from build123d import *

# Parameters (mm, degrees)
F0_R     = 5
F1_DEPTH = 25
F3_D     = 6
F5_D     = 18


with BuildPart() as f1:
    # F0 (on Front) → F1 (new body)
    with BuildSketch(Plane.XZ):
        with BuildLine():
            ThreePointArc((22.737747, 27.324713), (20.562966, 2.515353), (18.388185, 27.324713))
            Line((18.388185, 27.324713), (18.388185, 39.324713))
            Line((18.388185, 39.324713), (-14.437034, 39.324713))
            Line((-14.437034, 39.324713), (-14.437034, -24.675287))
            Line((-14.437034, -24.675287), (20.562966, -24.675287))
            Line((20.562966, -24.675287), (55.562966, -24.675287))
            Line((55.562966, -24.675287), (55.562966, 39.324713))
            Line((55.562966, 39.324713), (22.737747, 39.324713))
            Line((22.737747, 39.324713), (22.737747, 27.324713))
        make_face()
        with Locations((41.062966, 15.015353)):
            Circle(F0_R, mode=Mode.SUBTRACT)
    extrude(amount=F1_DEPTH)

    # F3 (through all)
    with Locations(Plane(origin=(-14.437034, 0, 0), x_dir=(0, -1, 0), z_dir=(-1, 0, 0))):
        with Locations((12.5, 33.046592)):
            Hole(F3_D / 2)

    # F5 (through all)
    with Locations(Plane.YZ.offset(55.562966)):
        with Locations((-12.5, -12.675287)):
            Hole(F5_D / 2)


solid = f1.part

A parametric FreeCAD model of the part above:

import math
import FreeCAD as App
import Part
import Sketcher
from FreeCAD import Vector

doc = App.newDocument("Part")
body = doc.addObject("PartDesign::Body", "Body")

# Sketch on XZ plane
sketch1 = doc.addObject("Sketcher::SketchObject", "Sketch")
body.addObject(sketch1)
sketch1.AttachmentSupport = (doc.XZ_Plane, [""])
sketch1.MapMode = "FlatFace"
sketch1.addGeometry([
    Part.ArcOfCircle(Part.Circle(Vector(20.562966, 15.015353, 0), Vector(0, 0, 1), 12.5), math.radians(100.01945), math.radians(439.98055)),  # 0
    Part.LineSegment(Vector(18.388185, 27.324713, 0), Vector(18.388185, 39.324713, 0)),  # 1
    Part.LineSegment(Vector(18.388185, 39.324713, 0), Vector(-14.437034, 39.324713, 0)),  # 2
    Part.LineSegment(Vector(-14.437034, 39.324713, 0), Vector(-14.437034, -24.675287, 0)),  # 3
    Part.LineSegment(Vector(-14.437034, -24.675287, 0), Vector(55.562966, -24.675287, 0)),  # 4
    Part.LineSegment(Vector(55.562966, -24.675287, 0), Vector(55.562966, 39.324713, 0)),  # 5
    Part.LineSegment(Vector(55.562966, 39.324713, 0), Vector(22.737747, 39.324713, 0)),  # 6
    Part.LineSegment(Vector(22.737747, 39.324713, 0), Vector(22.737747, 27.324713, 0)),  # 7
    Part.Circle(Vector(41.062966, 15.015353, 0), Vector(0, 0, 1), 5),  # 8
], False)
sketch1.addConstraint([
    Sketcher.Constraint("Coincident", 0, 1, 1, 1),
    Sketcher.Constraint("Coincident", 1, 2, 2, 1),
    Sketcher.Constraint("Coincident", 2, 2, 3, 1),
    Sketcher.Constraint("Coincident", 3, 2, 4, 1),
    Sketcher.Constraint("Coincident", 4, 2, 5, 1),
    Sketcher.Constraint("Coincident", 5, 2, 6, 1),
    Sketcher.Constraint("Coincident", 6, 2, 7, 1),
    Sketcher.Constraint("Coincident", 7, 2, 0, 2),
    Sketcher.Constraint("Vertical", 1),
    Sketcher.Constraint("Horizontal", 2),
    Sketcher.Constraint("Vertical", 3),
    Sketcher.Constraint("Horizontal", 4),
    Sketcher.Constraint("Vertical", 5),
    Sketcher.Constraint("Horizontal", 6),
    Sketcher.Constraint("Vertical", 7),
    Sketcher.Constraint("Horizontal", 0, 3, 8, 3),
    Sketcher.Constraint("Horizontal", 2, 2, 5, 2),
    Sketcher.Constraint("Horizontal", 0, 1, 7, 2),
    Sketcher.Constraint("Equal", 2, 6),
    Sketcher.Constraint("Diameter", 8, 10.0),
    Sketcher.Constraint("Radius", 0, 12.5),
    Sketcher.Constraint("DistanceX", 4, 1, 4, 2, 70.0),
    Sketcher.Constraint("DistanceY", 1, 1, 1, 2, 12.0),
    Sketcher.Constraint("DistanceY", 3, 2, 3, 1, 64.0),
    Sketcher.Constraint("DistanceX", 0, 3, 8, 3, 20.5),
    Sketcher.Constraint("DistanceX", 2, 2, 2, 1, 32.825219),
    Sketcher.Constraint("DistanceX", -1, 1, 0, 3, 20.562966),
    Sketcher.Constraint("DistanceY", -1, 1, 0, 3, 15.015353),
])
pad1 = doc.addObject("PartDesign::Pad", "Pad")
body.addObject(pad1)
pad1.Profile = sketch1
pad1.Length = 25

# Sketch on YZ plane
sketch2 = doc.addObject("Sketcher::SketchObject", "Sketch001")
body.addObject(sketch2)
sketch2.AttachmentSupport = (doc.YZ_Plane, [""])
sketch2.MapMode = "FlatFace"
sketch2.AttachmentOffset = App.Placement(Vector(0, 0, -14.437034), App.Rotation())
sketch2.addGeometry(Part.Circle(Vector(-12.5, 33.046592, 0), Vector(0, 0, 1), 3), False)
sketch2.addConstraint([
    Sketcher.Constraint("Diameter", 0, 6.0),
    Sketcher.Constraint("DistanceX", 0, 3, -1, 1, 12.5),
    Sketcher.Constraint("DistanceY", -1, 1, 0, 3, 33.046592),
])
doc.recompute()
hole = doc.addObject("PartDesign::Hole", "Hole")
body.addObject(hole)
hole.Profile = sketch2
hole.ThreadType = "None"
hole.Diameter = 6
hole.DepthType = "ThroughAll"
hole.Reversed = True

# Sketch on YZ plane
sketch3 = doc.addObject("Sketcher::SketchObject", "Sketch002")
body.addObject(sketch3)
sketch3.AttachmentSupport = (doc.YZ_Plane, [""])
sketch3.MapMode = "FlatFace"
sketch3.AttachmentOffset = App.Placement(Vector(0, 0, 55.562966), App.Rotation())
sketch3.addGeometry(Part.Circle(Vector(-12.5, -12.675287, 0), Vector(0, 0, 1), 9), False)
sketch3.addConstraint([
    Sketcher.Constraint("Diameter", 0, 18.0),
    Sketcher.Constraint("DistanceX", 0, 3, -1, 1, 12.5),
    Sketcher.Constraint("DistanceY", 0, 3, -1, 1, 12.675287),
])
doc.recompute()
hole2 = doc.addObject("PartDesign::Hole", "Hole001")
body.addObject(hole2)
hole2.Profile = sketch3
hole2.ThreadType = "None"
hole2.Diameter = 18
hole2.DepthType = "ThroughAll"

doc.recompute()
